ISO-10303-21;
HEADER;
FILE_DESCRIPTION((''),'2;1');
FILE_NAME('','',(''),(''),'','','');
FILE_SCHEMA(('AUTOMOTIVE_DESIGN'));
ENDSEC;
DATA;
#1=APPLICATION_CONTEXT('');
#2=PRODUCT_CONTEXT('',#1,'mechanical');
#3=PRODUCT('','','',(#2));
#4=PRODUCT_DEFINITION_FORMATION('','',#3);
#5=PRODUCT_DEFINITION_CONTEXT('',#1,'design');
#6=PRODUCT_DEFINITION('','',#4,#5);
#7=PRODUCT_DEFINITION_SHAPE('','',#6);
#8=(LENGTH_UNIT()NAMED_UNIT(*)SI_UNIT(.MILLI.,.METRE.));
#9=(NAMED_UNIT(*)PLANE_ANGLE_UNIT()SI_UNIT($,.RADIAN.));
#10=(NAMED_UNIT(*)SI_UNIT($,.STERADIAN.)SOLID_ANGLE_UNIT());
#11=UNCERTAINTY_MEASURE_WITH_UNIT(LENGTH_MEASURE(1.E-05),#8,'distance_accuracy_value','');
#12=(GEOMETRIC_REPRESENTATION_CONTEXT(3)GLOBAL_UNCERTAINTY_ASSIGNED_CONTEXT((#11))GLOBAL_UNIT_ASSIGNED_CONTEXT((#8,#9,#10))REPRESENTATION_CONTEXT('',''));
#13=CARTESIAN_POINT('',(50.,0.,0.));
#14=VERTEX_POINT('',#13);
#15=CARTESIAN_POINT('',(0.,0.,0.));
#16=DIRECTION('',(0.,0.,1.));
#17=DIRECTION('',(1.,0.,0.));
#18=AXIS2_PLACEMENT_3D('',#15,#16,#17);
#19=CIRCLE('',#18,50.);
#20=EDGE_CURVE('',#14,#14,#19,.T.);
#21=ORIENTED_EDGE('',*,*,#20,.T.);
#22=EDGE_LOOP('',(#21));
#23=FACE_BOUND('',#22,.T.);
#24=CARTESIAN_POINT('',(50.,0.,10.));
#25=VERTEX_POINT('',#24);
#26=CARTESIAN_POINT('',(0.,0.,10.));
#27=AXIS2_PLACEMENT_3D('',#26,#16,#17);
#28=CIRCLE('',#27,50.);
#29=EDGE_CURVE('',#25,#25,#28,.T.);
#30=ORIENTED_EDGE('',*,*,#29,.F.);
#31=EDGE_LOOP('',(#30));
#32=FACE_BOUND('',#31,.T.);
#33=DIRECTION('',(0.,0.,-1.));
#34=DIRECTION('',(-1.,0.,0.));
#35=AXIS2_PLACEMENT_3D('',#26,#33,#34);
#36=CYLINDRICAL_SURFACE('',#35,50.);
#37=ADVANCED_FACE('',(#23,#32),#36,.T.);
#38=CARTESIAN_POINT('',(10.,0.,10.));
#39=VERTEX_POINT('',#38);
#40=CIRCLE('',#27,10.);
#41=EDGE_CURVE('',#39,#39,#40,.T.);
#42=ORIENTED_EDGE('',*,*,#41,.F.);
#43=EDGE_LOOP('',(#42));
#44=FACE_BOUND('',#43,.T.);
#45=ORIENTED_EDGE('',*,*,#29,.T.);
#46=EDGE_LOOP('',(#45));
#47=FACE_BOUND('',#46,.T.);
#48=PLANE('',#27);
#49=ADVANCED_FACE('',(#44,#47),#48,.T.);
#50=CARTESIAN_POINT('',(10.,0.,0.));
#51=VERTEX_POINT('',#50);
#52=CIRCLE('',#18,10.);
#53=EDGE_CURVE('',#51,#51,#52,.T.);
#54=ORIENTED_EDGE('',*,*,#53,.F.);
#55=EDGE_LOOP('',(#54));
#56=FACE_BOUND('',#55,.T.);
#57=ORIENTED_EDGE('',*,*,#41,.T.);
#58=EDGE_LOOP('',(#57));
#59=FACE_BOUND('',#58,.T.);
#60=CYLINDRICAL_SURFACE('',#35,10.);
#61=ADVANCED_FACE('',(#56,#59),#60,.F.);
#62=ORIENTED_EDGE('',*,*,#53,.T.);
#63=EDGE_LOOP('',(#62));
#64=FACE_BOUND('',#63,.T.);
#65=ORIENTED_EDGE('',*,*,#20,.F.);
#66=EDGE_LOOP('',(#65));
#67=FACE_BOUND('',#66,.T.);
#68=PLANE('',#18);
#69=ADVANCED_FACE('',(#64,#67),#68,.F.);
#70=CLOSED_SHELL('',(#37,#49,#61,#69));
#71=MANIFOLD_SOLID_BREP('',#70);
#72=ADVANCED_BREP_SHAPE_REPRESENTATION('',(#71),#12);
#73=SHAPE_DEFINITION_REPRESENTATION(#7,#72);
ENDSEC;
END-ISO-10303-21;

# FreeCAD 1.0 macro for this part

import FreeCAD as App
import Part
import Sketcher
Q = App.Units.Quantity

doc = App.newDocument("Part")
body = doc.addObject("PartDesign::Body", "Body")

sketch1 = doc.addObject("Sketcher::SketchObject", "Sketch")
body.addObject(sketch1)
sketch1.AttachmentSupport = (doc.XY_Plane, [""])
sketch1.MapMode = "FlatFace"
sketch1.addGeometry([
    Part.Circle(App.Vector(0, 0, 0), App.Vector(0, 0, 1), 50),
    Part.Circle(App.Vector(0, 0, 0), App.Vector(0, 0, 1), 10),
], False)
sketch1.addConstraint([
    Sketcher.Constraint("Coincident", 0, 3, -1, 1),
    Sketcher.Constraint("Coincident", 1, 3, -1, 1),
    Sketcher.Constraint("Diameter", 0, Q("100 mm")),
    Sketcher.Constraint("Diameter", 1, Q("20 mm")),
])
pad1 = doc.addObject("PartDesign::Pad", "Pad")
body.addObject(pad1)
pad1.Profile = sketch1
pad1.Length = 10

doc.recompute()
